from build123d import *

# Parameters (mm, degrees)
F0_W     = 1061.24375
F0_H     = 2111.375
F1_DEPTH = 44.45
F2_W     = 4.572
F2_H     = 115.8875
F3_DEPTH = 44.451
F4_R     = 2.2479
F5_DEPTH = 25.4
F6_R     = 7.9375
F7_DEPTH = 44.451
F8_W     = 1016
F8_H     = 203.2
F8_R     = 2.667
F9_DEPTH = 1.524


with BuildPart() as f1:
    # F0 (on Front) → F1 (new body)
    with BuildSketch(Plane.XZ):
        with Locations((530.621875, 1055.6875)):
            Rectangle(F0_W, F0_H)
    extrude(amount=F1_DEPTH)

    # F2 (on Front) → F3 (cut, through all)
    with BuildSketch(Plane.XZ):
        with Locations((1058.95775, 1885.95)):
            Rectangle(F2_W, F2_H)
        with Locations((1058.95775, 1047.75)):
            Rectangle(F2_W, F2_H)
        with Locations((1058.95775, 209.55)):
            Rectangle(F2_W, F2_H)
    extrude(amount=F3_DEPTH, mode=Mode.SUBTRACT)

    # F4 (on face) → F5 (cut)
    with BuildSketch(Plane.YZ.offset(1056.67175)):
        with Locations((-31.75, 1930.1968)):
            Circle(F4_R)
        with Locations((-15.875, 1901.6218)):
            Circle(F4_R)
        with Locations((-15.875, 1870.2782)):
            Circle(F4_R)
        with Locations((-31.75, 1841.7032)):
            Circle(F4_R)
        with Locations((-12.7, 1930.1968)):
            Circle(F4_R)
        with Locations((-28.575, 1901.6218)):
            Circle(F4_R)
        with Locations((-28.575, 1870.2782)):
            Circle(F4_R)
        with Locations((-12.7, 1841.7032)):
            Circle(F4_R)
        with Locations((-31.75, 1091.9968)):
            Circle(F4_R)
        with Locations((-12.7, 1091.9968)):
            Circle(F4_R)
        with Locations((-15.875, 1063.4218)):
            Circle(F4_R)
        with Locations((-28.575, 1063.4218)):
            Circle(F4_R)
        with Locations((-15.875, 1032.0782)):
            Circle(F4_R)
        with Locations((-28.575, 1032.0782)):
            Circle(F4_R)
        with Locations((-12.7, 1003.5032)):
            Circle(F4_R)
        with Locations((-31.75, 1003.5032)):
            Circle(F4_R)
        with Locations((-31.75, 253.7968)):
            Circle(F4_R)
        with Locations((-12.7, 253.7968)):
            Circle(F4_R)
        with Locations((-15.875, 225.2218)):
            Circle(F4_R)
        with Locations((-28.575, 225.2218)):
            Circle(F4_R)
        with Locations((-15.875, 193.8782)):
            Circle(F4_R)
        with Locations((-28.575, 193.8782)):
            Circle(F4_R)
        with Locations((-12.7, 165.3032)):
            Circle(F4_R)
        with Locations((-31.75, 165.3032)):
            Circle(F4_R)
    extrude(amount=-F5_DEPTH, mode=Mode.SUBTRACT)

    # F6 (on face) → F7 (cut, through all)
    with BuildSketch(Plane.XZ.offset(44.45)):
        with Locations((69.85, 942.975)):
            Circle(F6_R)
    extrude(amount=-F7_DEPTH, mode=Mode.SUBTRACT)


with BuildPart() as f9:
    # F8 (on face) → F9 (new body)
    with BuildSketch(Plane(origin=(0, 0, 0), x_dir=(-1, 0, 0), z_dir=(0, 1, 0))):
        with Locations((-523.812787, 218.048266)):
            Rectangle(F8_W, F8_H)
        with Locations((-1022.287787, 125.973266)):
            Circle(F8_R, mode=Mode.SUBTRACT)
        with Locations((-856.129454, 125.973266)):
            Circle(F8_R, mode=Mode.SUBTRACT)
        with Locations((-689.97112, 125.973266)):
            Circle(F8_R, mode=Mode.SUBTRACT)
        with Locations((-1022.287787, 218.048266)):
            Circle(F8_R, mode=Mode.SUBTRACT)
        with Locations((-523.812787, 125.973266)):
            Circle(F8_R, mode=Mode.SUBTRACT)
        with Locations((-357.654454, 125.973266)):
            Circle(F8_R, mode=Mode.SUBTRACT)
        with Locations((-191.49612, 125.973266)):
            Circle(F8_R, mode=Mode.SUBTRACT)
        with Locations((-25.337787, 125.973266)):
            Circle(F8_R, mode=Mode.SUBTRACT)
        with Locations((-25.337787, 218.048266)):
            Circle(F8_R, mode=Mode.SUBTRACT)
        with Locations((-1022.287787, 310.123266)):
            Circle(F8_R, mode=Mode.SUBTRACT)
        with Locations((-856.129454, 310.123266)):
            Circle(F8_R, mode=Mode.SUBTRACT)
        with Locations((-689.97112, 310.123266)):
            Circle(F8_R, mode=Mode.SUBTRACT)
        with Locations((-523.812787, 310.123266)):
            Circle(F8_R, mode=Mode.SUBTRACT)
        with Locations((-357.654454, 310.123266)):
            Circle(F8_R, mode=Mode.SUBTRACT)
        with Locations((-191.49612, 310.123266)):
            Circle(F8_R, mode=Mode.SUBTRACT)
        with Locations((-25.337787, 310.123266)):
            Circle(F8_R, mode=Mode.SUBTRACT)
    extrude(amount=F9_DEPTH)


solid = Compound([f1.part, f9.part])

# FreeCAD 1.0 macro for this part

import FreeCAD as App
import Part
import Sketcher

V = App.Vector
Q = App.Units.Quantity


def add_polygon(sketch, points):
    """Adds a closed chain of lines whose ends are joined by coincident constraints."""
    first, n = sketch.GeometryCount, len(points)
    for a, b in zip(points, points[1:] + points[:1]):
        sketch.addGeometry(Part.LineSegment(App.Vector(*a, 0), App.Vector(*b, 0)), False)
    for i in range(n):
        sketch.addConstraint(Sketcher.Constraint("Coincident", first + i, 2, first + (i + 1) % n, 1))

doc = App.newDocument("Part")
body = doc.addObject("PartDesign::Body", "Body")

# Sketch on XZ plane
sketch1 = body.newObject("Sketcher::SketchObject", "Sketch")
sketch1.AttachmentSupport = (doc.getObject("XZ_Plane"), [""])
sketch1.MapMode = "FlatFace"
add_polygon(sketch1, [(0, 2111), (0, 0), (1061, 0), (1061, 2111)])  # lines 0-3
sketch1.addConstraint([
    Sketcher.Constraint("Vertical", 0),
    Sketcher.Constraint("Horizontal", 1),
    Sketcher.Constraint("Vertical", 2),
    Sketcher.Constraint("Horizontal", 3),
    Sketcher.Constraint("Coincident", 0, 2, -1, 1),
    Sketcher.Constraint("DistanceX", 1, 1, 1, 2, Q("41.78125 in")),
    Sketcher.Constraint("DistanceY", 0, 2, 0, 1, Q("83.125 in")),
])
pad1 = body.newObject("PartDesign::Pad", "Pad")
pad1.Profile = sketch1
pad1.Length = Q("1.75 in")

# Sketch on XZ plane
sketch2 = body.newObject("Sketcher::SketchObject", "Sketch001")
sketch2.AttachmentSupport = (doc.getObject("XZ_Plane"), [""])
sketch2.MapMode = "FlatFace"
add_polygon(sketch2, [(1056.7, 1943.9), (1056.7, 1828), (1061.2, 1828), (1061.2, 1943.9)])  # lines 0-3
add_polygon(sketch2, [(1056.7, 1105.7), (1056.7, 989.8), (1061.2, 989.8), (1061.2, 1105.7)])  # lines 4-7
add_polygon(sketch2, [(1056.7, 267.5), (1056.7, 151.6), (1061.2, 151.6), (1061.2, 267.5)])  # lines 8-11
sketch2.addConstraint([
    Sketcher.Constraint("Vertical", 0),
    Sketcher.Constraint("Horizontal", 1),
    Sketcher.Constraint("Vertical", 2),
    Sketcher.Constraint("Horizontal", 3),
    Sketcher.Constraint("Vertical", 4),
    Sketcher.Constraint("Horizontal", 5),
    Sketcher.Constraint("Vertical", 6),
    Sketcher.Constraint("Horizontal", 7),
    Sketcher.Constraint("Vertical", 8),
    Sketcher.Constraint("Horizontal", 9),
    Sketcher.Constraint("Vertical", 10),
    Sketcher.Constraint("Horizontal", 11),
    Sketcher.Constraint("Vertical", 3, 2, 4, 2),
    Sketcher.Constraint("Vertical", 2, 2, 5, 2),
    Sketcher.Constraint("Vertical", 7, 2, 8, 2),
    Sketcher.Constraint("Vertical", 6, 2, 9, 2),
    Sketcher.Constraint("Equal", 2, 4),
    Sketcher.Constraint("Equal", 6, 8),
    Sketcher.Constraint("DistanceY", 4, 2, 0, 2, Q("33 in")),
    Sketcher.Constraint("DistanceY", 8, 2, 4, 2, Q("33 in")),
    Sketcher.Constraint("DistanceX", 1, 1, 1, 2, Q("0.18 in")),
    Sketcher.Constraint("DistanceY", 0, 2, 0, 1, Q("4.5625 in")),
    Sketcher.Constraint("DistanceY", -1, 1, 0, 2, Q("71.96875 in")),
    Sketcher.Constraint("DistanceX", -1, 1, 1, 2, Q("41.78125 in")),
])
pocket1 = body.newObject("PartDesign::Pocket", "Pocket")
pocket1.Profile = sketch2
pocket1.Type = "ThroughAll"
pocket1.Reversed = True

# Sketch on YZ plane
sketch3 = body.newObject("Sketcher::SketchObject", "Sketch002")
sketch3.AttachmentSupport = (doc.getObject("YZ_Plane"), [""])
sketch3.MapMode = "FlatFace"
sketch3.AttachmentOffset = App.Placement(V(0, 0, 1056.67175), App.Rotation())
sketch3.addGeometry([
    Part.Circle(V(-31.8, 1930.2, 0), V(0, 0, 1), 2.2),  # 0
    Part.Circle(V(-15.9, 1901.6, 0), V(0, 0, 1), 2.2),  # 1
    Part.Circle(V(-15.9, 1870.3, 0), V(0, 0, 1), 2.2),  # 2
    Part.Circle(V(-31.8, 1841.7, 0), V(0, 0, 1), 2.2),  # 3
    Part.Circle(V(-12.7, 1930.2, 0), V(0, 0, 1), 2.2),  # 4
    Part.Circle(V(-28.6, 1901.6, 0), V(0, 0, 1), 2.2),  # 5
    Part.Circle(V(-28.6, 1870.3, 0), V(0, 0, 1), 2.2),  # 6
    Part.Circle(V(-12.7, 1841.7, 0), V(0, 0, 1), 2.2),  # 7
    Part.Circle(V(-31.8, 1092, 0), V(0, 0, 1), 2.2),  # 8
    Part.Circle(V(-12.7, 1092, 0), V(0, 0, 1), 2.2),  # 9
    Part.Circle(V(-15.9, 1063.4, 0), V(0, 0, 1), 2.2),  # 10
    Part.Circle(V(-28.6, 1063.4, 0), V(0, 0, 1), 2.2),  # 11
    Part.Circle(V(-15.9, 1032.1, 0), V(0, 0, 1), 2.2),  # 12
    Part.Circle(V(-28.6, 1032.1, 0), V(0, 0, 1), 2.2),  # 13
    Part.Circle(V(-12.7, 1003.5, 0), V(0, 0, 1), 2.2),  # 14
    Part.Circle(V(-31.8, 1003.5, 0), V(0, 0, 1), 2.2),  # 15
    Part.Circle(V(-31.8, 253.8, 0), V(0, 0, 1), 2.2),  # 16
    Part.Circle(V(-12.7, 253.8, 0), V(0, 0, 1), 2.2),  # 17
    Part.Circle(V(-15.9, 225.2, 0), V(0, 0, 1), 2.2),  # 18
    Part.Circle(V(-28.6, 225.2, 0), V(0, 0, 1), 2.2),  # 19
    Part.Circle(V(-15.9, 193.9, 0), V(0, 0, 1), 2.2),  # 20
    Part.Circle(V(-28.6, 193.9, 0), V(0, 0, 1), 2.2),  # 21
    Part.Circle(V(-12.7, 165.3, 0), V(0, 0, 1), 2.2),  # 22
    Part.Circle(V(-31.8, 165.3, 0), V(0, 0, 1), 2.2),  # 23
], False)
sketch3.addConstraint([
    Sketcher.Constraint("Equal", 0, 1),
    Sketcher.Constraint("Equal", 1, 2),
    Sketcher.Constraint("Equal", 2, 3),
    Sketcher.Constraint("Equal", 3, 4),
    Sketcher.Constraint("Equal", 4, 5),
    Sketcher.Constraint("Equal", 5, 6),
    Sketcher.Constraint("Equal", 6, 7),
    Sketcher.Constraint("Equal", 7, 8),
    Sketcher.Constraint("Equal", 8, 9),
    Sketcher.Constraint("Equal", 9, 10),
    Sketcher.Constraint("Equal", 10, 11),
    Sketcher.Constraint("Equal", 11, 12),
    Sketcher.Constraint("Equal", 12, 13),
    Sketcher.Constraint("Equal", 13, 14),
    Sketcher.Constraint("Equal", 14, 15),
    Sketcher.Constraint("Equal", 15, 16),
    Sketcher.Constraint("Equal", 16, 17),
    Sketcher.Constraint("Equal", 17, 18),
    Sketcher.Constraint("Equal", 18, 19),
    Sketcher.Constraint("Equal", 19, 20),
    Sketcher.Constraint("Equal", 20, 21),
    Sketcher.Constraint("Equal", 21, 22),
    Sketcher.Constraint("Equal", 22, 23),
    Sketcher.Constraint("Horizontal", 0, 3, 4, 3),
    Sketcher.Constraint("Horizontal", 1, 3, 5, 3),
    Sketcher.Constraint("Horizontal", 2, 3, 6, 3),
    Sketcher.Constraint("Horizontal", 3, 3, 7, 3),
    Sketcher.Constraint("Horizontal", 8, 3, 9, 3),
    Sketcher.Constraint("Horizontal", 10, 3, 11, 3),
    Sketcher.Constraint("Horizontal", 12, 3, 13, 3),
    Sketcher.Constraint("Horizontal", 14, 3, 15, 3),
    Sketcher.Constraint("Horizontal", 16, 3, 17, 3),
    Sketcher.Constraint("Horizontal", 18, 3, 19, 3),
    Sketcher.Constraint("Horizontal", 20, 3, 21, 3),
    Sketcher.Constraint("Horizontal", 22, 3, 23, 3),
    Sketcher.Constraint("Vertical", 1, 3, 2, 3),
    Sketcher.Constraint("Vertical", 0, 3, 3, 3),
    Sketcher.Constraint("Vertical", 5, 3, 6, 3),
    Sketcher.Constraint("Vertical", 4, 3, 7, 3),
    Sketcher.Constraint("Vertical", 3, 3, 8, 3),
    Sketcher.Constraint("Vertical", 7, 3, 9, 3),
    Sketcher.Constraint("Vertical", 2, 3, 10, 3),
    Sketcher.Constraint("Vertical", 6, 3, 11, 3),
    Sketcher.Constraint("Vertical", 10, 3, 12, 3),
    Sketcher.Constraint("Vertical", 11, 3, 13, 3),
    Sketcher.Constraint("Vertical", 9, 3, 14, 3),
    Sketcher.Constraint("Vertical", 8, 3, 15, 3),
    Sketcher.Constraint("Vertical", 15, 3, 16, 3),
    Sketcher.Constraint("Vertical", 14, 3, 17, 3),
    Sketcher.Constraint("Vertical", 12, 3, 18, 3),
    Sketcher.Constraint("Vertical", 13, 3, 19, 3),
    Sketcher.Constraint("Vertical", 18, 3, 20, 3),
    Sketcher.Constraint("Vertical", 19, 3, 21, 3),
    Sketcher.Constraint("Vertical", 17, 3, 22, 3),
    Sketcher.Constraint("Vertical", 16, 3, 23, 3),
    Sketcher.Constraint("Diameter", 0, Q("0.177 in")),
    Sketcher.Constraint("DistanceX", 4, 3, -1, 1, Q("0.5 in")),
    Sketcher.Constraint("DistanceX", 5, 3, 1, 3, Q("0.5 in")),
    Sketcher.Constraint("DistanceX", 0, 3, -1, 1, Q("1.25 in")),
    Sketcher.Constraint("DistanceY", -1, 1, 0, 3, Q("75.992 in")),
    Sketcher.Constraint("DistanceX", 1, 3, -1, 1, Q("0.625 in")),
    Sketcher.Constraint("DistanceY", -1, 1, 1, 3, Q("74.867 in")),
    Sketcher.Constraint("DistanceY", -1, 1, 2, 3, Q("73.633 in")),
    Sketcher.Constraint("DistanceY", -1, 1, 3, 3, Q("72.508 in")),
    Sketcher.Constraint("DistanceY", -1, 1, 8, 3, Q("42.992 in")),
    Sketcher.Constraint("DistanceY", -1, 1, 10, 3, Q("41.867 in")),
    Sketcher.Constraint("DistanceY", -1, 1, 12, 3, Q("40.633 in")),
    Sketcher.Constraint("DistanceY", -1, 1, 14, 3, Q("39.508 in")),
    Sketcher.Constraint("DistanceY", -1, 1, 16, 3, Q("9.992 in")),
    Sketcher.Constraint("DistanceY", -1, 1, 18, 3, Q("8.867 in")),
    Sketcher.Constraint("DistanceY", -1, 1, 20, 3, Q("7.633 in")),
    Sketcher.Constraint("DistanceY", -1, 1, 22, 3, Q("6.508 in")),
])
pocket2 = body.newObject("PartDesign::Pocket", "Pocket001")
pocket2.Profile = sketch3
pocket2.Length = Q("1 in")

# Sketch on XZ plane
sketch4 = body.newObject("Sketcher::SketchObject", "Sketch003")
sketch4.AttachmentSupport = (doc.getObject("XZ_Plane"), [""])
sketch4.MapMode = "FlatFace"
sketch4.AttachmentOffset = App.Placement(V(0, 0, 1.75 * 25.4), App.Rotation())
sketch4.addGeometry(Part.Circle(V(70, 943, 0), V(0, 0, 1), 8), False)
sketch4.addConstraint([
    Sketcher.Constraint("Diameter", 0, Q("0.625 in")),
    Sketcher.Constraint("DistanceX", -1, 1, 0, 3, Q("2.75 in")),
    Sketcher.Constraint("DistanceY", -1, 1, 0, 3, Q("37.125 in")),
])
pocket3 = body.newObject("PartDesign::Pocket", "Pocket002")
pocket3.Profile = sketch4
pocket3.Type = "ThroughAll"
body2 = doc.addObject("PartDesign::Body", "Body001")

# Sketch on XZ plane
sketch5 = body2.newObject("Sketcher::SketchObject", "Sketch004")
sketch5.AttachmentSupport = (doc.getObject("XZ_Plane001"), [""])
sketch5.MapMode = "FlatFace"
add_polygon(sketch5, [(1031.8, 319.6), (1031.8, 116.4), (15.8, 116.4), (15.8, 319.6)])  # lines 0-3
sketch5.addGeometry(Part.Circle(V(1022.3, 126, 0), V(0, 0, 1), 2.7), False)  # 4
sketch5.addGeometry(Part.Circle(V(856.1, 126, 0), V(0, 0, 1), 2.7), False)  # 5
sketch5.addGeometry(Part.Circle(V(690, 126, 0), V(0, 0, 1), 2.7), False)  # 6
sketch5.addGeometry(Part.Circle(V(523.8, 126, 0), V(0, 0, 1), 2.7), False)  # 7
sketch5.addGeometry(Part.Circle(V(357.7, 126, 0), V(0, 0, 1), 2.7), False)  # 8
sketch5.addGeometry(Part.Circle(V(191.5, 126, 0), V(0, 0, 1), 2.7), False)  # 9
sketch5.addGeometry(Part.Circle(V(25.3, 126, 0), V(0, 0, 1), 2.7), False)  # 10
sketch5.addGeometry(Part.Circle(V(1022.3, 218, 0), V(0, 0, 1), 2.7), False)  # 11
sketch5.addGeometry(Part.Circle(V(1022.3, 310.1, 0), V(0, 0, 1), 2.7), False)  # 12
sketch5.addGeometry(Part.Circle(V(856.1, 310.1, 0), V(0, 0, 1), 2.7), False)  # 13
sketch5.addGeometry(Part.Circle(V(690, 310.1, 0), V(0, 0, 1), 2.7), False)  # 14
sketch5.addGeometry(Part.Circle(V(25.3, 218, 0), V(0, 0, 1), 2.7), False)  # 15
sketch5.addGeometry(Part.Circle(V(523.8, 310.1, 0), V(0, 0, 1), 2.7), False)  # 16
sketch5.addGeometry(Part.Circle(V(357.7, 310.1, 0), V(0, 0, 1), 2.7), False)  # 17
sketch5.addGeometry(Part.Circle(V(191.5, 310.1, 0), V(0, 0, 1), 2.7), False)  # 18
sketch5.addGeometry(Part.Circle(V(25.3, 310.1, 0), V(0, 0, 1), 2.7), False)  # 19
sketch5.addConstraint([
    Sketcher.Constraint("Vertical", 0),
    Sketcher.Constraint("Horizontal", 1),
    Sketcher.Constraint("Vertical", 2),
    Sketcher.Constraint("Horizontal", 3),
    Sketcher.Constraint("Equal", 4, 5),
    Sketcher.Constraint("Equal", 5, 6),
    Sketcher.Constraint("Equal", 6, 7),
    Sketcher.Constraint("Equal", 7, 8),
    Sketcher.Constraint("Equal", 8, 9),
    Sketcher.Constraint("Equal", 9, 10),
    Sketcher.Constraint("Equal", 10, 11),
    Sketcher.Constraint("Equal", 11, 12),
    Sketcher.Constraint("Equal", 12, 13),
    Sketcher.Constraint("Equal", 13, 14),
    Sketcher.Constraint("Equal", 14, 15),
    Sketcher.Constraint("Equal", 15, 16),
    Sketcher.Constraint("Equal", 16, 17),
    Sketcher.Constraint("Equal", 17, 18),
    Sketcher.Constraint("Equal", 18, 19),
    Sketcher.Constraint("Horizontal", 4, 3, 5, 3),
    Sketcher.Constraint("Horizontal", 5, 3, 6, 3),
    Sketcher.Constraint("Horizontal", 6, 3, 7, 3),
    Sketcher.Constraint("Horizontal", 7, 3, 8, 3),
    Sketcher.Constraint("Horizontal", 8, 3, 9, 3),
    Sketcher.Constraint("Horizontal", 9, 3, 10, 3),
    Sketcher.Constraint("Horizontal", 12, 3, 13, 3),
    Sketcher.Constraint("Horizontal", 13, 3, 14, 3),
    Sketcher.Constraint("Horizontal", 11, 3, 15, 3),
    Sketcher.Constraint("Horizontal", 14, 3, 16, 3),
    Sketcher.Constraint("Horizontal", 16, 3, 17, 3),
    Sketcher.Constraint("Horizontal", 17, 3, 18, 3),
    Sketcher.Constraint("Horizontal", 18, 3, 19, 3),
    Sketcher.Constraint("Vertical", 4, 3, 11, 3),
    Sketcher.Constraint("Vertical", 11, 3, 12, 3),
    Sketcher.Constraint("Vertical", 5, 3, 13, 3),
    Sketcher.Constraint("Vertical", 6, 3, 14, 3),
    Sketcher.Constraint("Vertical", 10, 3, 15, 3),
    Sketcher.Constraint("Vertical", 7, 3, 16, 3),
    Sketcher.Constraint("Vertical", 8, 3, 17, 3),
    Sketcher.Constraint("Vertical", 9, 3, 18, 3),
    Sketcher.Constraint("Vertical", 15, 3, 19, 3),
    Sketcher.Constraint("Diameter", 4, Q("0.21 in")),
    Sketcher.Constraint("DistanceX", 1, 2, 1, 1, Q("40 in")),
    Sketcher.Constraint("DistanceY", 0, 2, 0, 1, Q("8 in")),
    Sketcher.Constraint("DistanceY", 0, 2, 11, 3, Q("4 in")),
    Sketcher.Constraint("DistanceY", 4, 3, 12, 3, Q("7.25 in")),
    Sketcher.Constraint("DistanceX", 7, 3, 4, 3, Q("19.625 in")),
    Sketcher.Constraint("DistanceX", 8, 3, 5, 3, Q("19.625 in")),
    Sketcher.Constraint("DistanceX", 9, 3, 6, 3, Q("19.625 in")),
    Sketcher.Constraint("DistanceX", 10, 3, 7, 3, Q("19.625 in")),
    Sketcher.Constraint("DistanceY", 4, 3, 11, 3, Q("3.625 in")),
    Sketcher.Constraint("DistanceX", 4, 3, 0, 2, Q("0.375 in")),
    Sketcher.Constraint("DistanceX", -1, 1, 6, 3, 689.97112),
    Sketcher.Constraint("DistanceX", -1, 1, 4, 3, 1022.287787),
    Sketcher.Constraint("DistanceY", -1, 1, 4, 3, 125.973266),
    Sketcher.Constraint("DistanceX", -1, 1, 5, 3, 856.129454),
])
pad2 = body2.newObject("PartDesign::Pad", "Pad001")
pad2.Profile = sketch5
pad2.Length = Q("0.06 in")
pad2.Reversed = True

doc.recompute()
